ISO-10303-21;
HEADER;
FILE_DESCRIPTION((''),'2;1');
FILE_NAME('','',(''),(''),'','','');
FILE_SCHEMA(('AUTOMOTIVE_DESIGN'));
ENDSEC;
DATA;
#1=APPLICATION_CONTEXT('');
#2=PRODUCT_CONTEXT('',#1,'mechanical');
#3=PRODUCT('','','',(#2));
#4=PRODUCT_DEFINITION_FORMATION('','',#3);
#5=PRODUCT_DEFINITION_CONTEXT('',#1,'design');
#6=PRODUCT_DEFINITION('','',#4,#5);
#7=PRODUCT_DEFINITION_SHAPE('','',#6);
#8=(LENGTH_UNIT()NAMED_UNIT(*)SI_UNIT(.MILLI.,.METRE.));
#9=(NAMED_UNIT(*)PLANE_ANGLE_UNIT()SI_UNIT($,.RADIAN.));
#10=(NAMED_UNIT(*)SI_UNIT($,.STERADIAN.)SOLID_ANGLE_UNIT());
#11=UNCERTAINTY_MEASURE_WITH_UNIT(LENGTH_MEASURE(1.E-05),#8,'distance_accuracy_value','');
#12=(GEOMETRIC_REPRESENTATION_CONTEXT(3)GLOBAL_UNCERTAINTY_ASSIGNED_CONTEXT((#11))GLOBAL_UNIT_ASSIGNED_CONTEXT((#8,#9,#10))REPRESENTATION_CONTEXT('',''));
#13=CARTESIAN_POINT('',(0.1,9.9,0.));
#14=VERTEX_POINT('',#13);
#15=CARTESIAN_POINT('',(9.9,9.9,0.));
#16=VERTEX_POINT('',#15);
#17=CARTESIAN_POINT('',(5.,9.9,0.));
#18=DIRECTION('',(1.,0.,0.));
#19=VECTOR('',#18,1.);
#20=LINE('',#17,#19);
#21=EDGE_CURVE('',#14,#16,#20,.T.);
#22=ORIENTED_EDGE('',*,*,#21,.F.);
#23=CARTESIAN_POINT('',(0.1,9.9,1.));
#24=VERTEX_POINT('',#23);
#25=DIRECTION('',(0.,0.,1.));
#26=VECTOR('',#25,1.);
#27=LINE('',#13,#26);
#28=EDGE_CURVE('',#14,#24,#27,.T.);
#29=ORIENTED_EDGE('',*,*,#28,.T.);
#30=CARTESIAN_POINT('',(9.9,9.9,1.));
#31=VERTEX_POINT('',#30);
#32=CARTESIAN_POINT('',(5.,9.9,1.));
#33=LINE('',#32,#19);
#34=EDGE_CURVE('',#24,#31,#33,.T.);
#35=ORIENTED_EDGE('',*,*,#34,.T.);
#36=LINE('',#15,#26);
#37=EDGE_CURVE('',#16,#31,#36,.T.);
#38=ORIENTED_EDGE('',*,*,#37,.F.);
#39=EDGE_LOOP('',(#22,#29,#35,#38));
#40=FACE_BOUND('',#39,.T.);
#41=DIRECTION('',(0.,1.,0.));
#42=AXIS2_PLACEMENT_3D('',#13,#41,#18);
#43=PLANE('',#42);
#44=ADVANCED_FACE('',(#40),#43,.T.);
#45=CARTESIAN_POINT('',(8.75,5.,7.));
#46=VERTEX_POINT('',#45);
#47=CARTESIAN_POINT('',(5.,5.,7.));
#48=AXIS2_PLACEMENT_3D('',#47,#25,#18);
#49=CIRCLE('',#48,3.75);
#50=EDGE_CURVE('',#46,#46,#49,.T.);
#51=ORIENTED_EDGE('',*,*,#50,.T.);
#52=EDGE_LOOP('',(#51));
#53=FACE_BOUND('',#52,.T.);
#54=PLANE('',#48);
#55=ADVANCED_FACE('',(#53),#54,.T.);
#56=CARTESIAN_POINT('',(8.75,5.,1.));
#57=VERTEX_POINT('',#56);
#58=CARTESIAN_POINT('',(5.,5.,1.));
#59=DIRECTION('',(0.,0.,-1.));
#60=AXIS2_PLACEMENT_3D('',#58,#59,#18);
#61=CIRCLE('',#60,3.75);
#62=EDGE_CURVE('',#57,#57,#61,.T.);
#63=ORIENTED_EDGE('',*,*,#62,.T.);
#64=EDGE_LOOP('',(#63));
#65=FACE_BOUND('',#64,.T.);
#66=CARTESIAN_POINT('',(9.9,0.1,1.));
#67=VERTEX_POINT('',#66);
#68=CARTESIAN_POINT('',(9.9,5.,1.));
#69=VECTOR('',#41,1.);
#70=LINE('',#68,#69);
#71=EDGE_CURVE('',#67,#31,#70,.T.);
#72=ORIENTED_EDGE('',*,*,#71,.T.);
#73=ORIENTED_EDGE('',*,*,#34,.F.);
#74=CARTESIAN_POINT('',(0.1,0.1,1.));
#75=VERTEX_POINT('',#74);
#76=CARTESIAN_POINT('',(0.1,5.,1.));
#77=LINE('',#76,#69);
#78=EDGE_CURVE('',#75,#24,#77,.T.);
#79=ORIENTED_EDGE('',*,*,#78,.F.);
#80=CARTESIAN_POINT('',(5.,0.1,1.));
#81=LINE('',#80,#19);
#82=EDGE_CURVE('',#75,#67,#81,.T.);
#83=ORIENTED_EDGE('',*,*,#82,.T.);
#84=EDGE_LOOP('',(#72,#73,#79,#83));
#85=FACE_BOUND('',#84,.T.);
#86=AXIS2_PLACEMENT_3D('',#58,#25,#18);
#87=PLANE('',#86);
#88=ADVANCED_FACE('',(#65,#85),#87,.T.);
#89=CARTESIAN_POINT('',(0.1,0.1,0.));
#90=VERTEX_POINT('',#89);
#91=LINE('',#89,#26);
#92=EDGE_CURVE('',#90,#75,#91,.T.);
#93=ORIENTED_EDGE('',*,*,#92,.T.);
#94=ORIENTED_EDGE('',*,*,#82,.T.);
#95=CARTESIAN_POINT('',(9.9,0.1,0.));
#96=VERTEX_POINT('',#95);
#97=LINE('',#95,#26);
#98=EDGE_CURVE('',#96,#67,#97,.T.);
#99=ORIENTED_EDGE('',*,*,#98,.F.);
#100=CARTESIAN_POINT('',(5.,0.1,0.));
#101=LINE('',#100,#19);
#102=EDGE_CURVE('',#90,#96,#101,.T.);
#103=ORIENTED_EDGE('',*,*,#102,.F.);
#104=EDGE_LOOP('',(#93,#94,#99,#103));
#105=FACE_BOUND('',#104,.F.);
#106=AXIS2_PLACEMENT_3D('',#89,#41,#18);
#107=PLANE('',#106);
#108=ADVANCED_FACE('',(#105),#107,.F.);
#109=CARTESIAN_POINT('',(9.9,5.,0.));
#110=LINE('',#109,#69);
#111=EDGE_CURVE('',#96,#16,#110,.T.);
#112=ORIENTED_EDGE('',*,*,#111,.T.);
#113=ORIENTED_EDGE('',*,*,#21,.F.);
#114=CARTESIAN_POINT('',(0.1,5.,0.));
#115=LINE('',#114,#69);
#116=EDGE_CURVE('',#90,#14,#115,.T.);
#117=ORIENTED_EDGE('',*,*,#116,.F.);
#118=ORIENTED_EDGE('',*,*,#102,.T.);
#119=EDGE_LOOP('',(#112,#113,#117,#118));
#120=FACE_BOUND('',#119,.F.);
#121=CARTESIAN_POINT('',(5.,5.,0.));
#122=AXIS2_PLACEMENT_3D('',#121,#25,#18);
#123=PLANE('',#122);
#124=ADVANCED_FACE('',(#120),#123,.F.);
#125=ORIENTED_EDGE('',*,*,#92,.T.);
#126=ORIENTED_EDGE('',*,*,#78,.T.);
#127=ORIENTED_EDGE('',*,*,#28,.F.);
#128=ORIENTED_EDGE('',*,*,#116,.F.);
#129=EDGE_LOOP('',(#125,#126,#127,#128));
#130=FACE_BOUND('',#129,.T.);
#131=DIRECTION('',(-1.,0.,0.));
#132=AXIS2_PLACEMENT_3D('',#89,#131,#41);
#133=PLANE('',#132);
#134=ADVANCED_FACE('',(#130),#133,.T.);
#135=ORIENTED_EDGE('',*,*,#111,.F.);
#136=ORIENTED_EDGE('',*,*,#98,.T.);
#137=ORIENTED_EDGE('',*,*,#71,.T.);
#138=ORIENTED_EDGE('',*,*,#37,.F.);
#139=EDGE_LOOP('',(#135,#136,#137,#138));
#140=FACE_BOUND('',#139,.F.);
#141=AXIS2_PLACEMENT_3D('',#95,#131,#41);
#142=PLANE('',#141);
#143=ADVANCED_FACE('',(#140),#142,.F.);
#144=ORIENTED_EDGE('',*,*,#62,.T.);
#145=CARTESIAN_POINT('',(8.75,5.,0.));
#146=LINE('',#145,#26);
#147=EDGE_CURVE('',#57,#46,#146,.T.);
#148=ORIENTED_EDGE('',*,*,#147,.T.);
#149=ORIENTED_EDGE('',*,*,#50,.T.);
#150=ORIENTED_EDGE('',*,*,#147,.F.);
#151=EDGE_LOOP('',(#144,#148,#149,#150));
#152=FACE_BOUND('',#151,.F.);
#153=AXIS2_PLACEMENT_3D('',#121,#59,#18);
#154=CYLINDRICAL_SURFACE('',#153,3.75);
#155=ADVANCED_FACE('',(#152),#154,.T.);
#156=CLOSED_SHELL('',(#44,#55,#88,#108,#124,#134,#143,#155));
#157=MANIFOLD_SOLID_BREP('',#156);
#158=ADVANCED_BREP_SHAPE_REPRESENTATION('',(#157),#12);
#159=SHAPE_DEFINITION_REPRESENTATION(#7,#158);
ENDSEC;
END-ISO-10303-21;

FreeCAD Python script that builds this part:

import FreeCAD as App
import Part
import Sketcher

V = App.Vector
Q = App.Units.Quantity

doc = App.newDocument("Part")
body = doc.addObject("PartDesign::Body", "Body")

# Sketch on XY plane
sketch1 = doc.addObject("Sketcher::SketchObject", "Sketch")
body.addObject(sketch1)
sketch1.AttachmentSupport = (doc.XY_Plane, [""])
sketch1.MapMode = "FlatFace"
sketch1.addGeometry(Part.Circle(V(5, 5, 0), V(0, 0, 1), 3.8), False)
sketch1.addConstraint([
    Sketcher.Constraint("Diameter", 0, Q("7.5 mm")),
    Sketcher.Constraint("DistanceX", -1, 1, 0, 3, Q("5 mm")),
    Sketcher.Constraint("DistanceY", -1, 1, 0, 3, Q("5 mm")),
])
pad1 = doc.addObject("PartDesign::Pad", "Pad")
body.addObject(pad1)
pad1.Profile = sketch1
pad1.Length = 7
body2 = doc.addObject("PartDesign::Body", "Body001")

# Sketch on XY plane
sketch2 = doc.addObject("Sketcher::SketchObject", "Sketch001")
body2.addObject(sketch2)
sketch2.AttachmentSupport = (doc.getObject("XY_Plane001"), [""])
sketch2.MapMode = "FlatFace"
sketch2.addGeometry([
    Part.LineSegment(V(0, 10, 0), V(0, 0, 0)),
    Part.LineSegment(V(0, 0, 0), V(10, 0, 0)),
    Part.LineSegment(V(10, 0, 0), V(10, 10, 0)),
    Part.LineSegment(V(10, 10, 0), V(0, 10, 0)),
], False)
sketch2.addConstraint([
    Sketcher.Constraint("Coincident", 0, 2, 1, 1),
    Sketcher.Constraint("Coincident", 1, 2, 2, 1),
    Sketcher.Constraint("Coincident", 2, 2, 3, 1),
    Sketcher.Constraint("Coincident", 3, 2, 0, 1),
    Sketcher.Constraint("Vertical", 0),
    Sketcher.Constraint("Horizontal", 1),
    Sketcher.Constraint("Vertical", 2),
    Sketcher.Constraint("Horizontal", 3),
    Sketcher.Constraint("Equal", 3, 0),
    Sketcher.Constraint("DistanceX", 1, 1, 1, 2, Q("9.8 mm")),
    Sketcher.Constraint("DistanceX", -1, 1, 0, 2, Q("0.1 mm")),
    Sketcher.Constraint("DistanceY", -1, 1, 0, 2, Q("0.1 mm")),
])
pad2 = doc.addObject("PartDesign::Pad", "Pad001")
body2.addObject(pad2)
pad2.Profile = sketch2
pad2.Length = 1
doc.recompute()

boolean = doc.addObject("PartDesign::Boolean", "Boolean")
body2.addObject(boolean)
boolean.Type = "Fuse"
boolean.addObjects([body])

doc.recompute()
